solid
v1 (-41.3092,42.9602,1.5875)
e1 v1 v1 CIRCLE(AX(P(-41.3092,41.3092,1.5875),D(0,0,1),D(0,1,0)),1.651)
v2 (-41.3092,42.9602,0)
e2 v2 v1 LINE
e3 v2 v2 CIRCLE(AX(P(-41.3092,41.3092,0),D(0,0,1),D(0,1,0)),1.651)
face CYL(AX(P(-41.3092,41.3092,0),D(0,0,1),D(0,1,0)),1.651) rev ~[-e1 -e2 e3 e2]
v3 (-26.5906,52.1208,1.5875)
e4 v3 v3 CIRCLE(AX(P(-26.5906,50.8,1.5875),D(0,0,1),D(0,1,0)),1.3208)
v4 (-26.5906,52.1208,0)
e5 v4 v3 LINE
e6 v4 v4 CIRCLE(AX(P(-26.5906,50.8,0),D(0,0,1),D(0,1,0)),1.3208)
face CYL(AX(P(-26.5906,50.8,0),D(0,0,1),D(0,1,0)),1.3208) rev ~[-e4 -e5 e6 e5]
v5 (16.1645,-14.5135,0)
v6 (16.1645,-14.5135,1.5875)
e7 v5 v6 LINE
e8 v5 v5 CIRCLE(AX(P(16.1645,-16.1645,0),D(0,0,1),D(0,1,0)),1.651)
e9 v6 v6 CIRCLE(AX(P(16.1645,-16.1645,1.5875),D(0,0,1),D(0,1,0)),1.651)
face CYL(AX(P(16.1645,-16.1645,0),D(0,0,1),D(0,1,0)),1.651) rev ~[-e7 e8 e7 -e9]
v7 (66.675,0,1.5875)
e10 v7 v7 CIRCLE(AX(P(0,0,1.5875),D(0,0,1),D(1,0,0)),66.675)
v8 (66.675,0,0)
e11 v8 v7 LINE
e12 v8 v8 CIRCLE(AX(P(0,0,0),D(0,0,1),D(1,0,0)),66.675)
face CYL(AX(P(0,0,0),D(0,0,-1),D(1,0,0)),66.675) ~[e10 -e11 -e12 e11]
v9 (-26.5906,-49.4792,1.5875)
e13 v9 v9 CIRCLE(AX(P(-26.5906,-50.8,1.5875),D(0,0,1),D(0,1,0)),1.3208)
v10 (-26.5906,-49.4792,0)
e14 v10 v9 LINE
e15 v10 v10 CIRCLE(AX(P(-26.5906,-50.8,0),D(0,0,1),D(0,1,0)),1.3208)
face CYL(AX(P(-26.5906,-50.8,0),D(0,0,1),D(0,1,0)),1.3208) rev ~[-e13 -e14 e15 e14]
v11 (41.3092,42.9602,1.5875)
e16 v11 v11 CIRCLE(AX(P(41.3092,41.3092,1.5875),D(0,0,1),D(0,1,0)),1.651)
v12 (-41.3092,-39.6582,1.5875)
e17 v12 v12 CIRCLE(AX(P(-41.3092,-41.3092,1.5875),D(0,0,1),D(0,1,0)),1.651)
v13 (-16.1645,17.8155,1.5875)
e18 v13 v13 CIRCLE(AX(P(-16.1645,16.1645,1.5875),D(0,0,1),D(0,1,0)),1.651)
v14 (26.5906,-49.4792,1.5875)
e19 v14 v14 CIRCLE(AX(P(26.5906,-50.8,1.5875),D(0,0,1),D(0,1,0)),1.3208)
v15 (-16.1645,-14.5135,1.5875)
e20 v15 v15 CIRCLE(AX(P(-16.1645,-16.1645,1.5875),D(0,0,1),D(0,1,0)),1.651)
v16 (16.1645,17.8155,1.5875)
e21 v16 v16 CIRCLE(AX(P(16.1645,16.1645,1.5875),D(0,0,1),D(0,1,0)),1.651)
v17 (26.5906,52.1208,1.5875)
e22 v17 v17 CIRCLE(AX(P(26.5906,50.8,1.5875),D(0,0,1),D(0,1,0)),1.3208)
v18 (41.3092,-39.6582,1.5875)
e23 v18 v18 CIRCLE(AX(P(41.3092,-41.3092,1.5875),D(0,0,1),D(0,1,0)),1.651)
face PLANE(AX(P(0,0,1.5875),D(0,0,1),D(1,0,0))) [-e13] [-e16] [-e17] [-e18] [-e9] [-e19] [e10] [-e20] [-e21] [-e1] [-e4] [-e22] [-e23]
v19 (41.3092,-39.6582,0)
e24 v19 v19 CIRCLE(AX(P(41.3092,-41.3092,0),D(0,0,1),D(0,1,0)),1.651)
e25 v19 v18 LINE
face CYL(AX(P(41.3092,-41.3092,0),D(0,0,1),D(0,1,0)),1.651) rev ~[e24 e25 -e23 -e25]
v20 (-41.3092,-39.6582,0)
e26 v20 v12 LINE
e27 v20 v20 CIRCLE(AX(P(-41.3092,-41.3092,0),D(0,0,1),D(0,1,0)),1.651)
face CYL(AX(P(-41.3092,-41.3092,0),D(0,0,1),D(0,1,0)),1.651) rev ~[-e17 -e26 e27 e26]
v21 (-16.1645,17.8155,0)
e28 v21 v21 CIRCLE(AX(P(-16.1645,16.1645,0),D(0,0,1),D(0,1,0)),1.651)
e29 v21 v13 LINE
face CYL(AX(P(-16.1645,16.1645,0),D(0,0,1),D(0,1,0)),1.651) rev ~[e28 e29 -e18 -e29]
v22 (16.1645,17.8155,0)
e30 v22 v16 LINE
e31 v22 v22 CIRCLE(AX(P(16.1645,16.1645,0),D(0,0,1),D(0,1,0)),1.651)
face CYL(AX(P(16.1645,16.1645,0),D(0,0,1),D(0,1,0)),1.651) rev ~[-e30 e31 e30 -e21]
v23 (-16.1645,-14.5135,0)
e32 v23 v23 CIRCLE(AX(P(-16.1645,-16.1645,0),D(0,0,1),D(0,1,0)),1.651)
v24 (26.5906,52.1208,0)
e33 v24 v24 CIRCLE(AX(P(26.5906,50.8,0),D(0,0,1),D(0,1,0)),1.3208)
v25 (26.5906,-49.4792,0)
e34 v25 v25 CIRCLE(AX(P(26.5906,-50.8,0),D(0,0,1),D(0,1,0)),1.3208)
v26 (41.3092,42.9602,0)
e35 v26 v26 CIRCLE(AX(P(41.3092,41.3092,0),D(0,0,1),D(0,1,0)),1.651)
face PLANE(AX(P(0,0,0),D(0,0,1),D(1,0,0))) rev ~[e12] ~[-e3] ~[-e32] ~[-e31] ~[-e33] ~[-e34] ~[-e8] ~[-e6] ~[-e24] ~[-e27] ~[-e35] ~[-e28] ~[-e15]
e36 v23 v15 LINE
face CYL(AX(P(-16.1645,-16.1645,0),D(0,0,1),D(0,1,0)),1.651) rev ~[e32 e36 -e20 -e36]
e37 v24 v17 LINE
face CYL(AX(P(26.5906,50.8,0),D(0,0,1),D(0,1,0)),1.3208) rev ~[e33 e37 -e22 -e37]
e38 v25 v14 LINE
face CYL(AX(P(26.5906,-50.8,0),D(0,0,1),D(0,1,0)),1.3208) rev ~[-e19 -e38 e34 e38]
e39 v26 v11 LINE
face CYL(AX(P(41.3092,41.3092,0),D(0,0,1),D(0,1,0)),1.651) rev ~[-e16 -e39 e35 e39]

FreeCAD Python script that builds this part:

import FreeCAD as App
import Part
import Sketcher
from FreeCAD import Vector
Q = App.Units.Quantity

doc = App.newDocument("Part")
params = doc.addObject("Spreadsheet::Sheet", "Params")
for row, (alias, value) in enumerate([
    ("sketch1_diameter", "5.25 in"),
    ("pad1_length", "0.0625 in"),
    ("sketch2_diameter", "0.13 in"),
    ("hole_diameter", "0.13 in"),
    ("sketch3_diameter", "0.104 in"),
    ("hole2_diameter", "0.104 in"),
], start=1):
    params.set(f"A{row}", alias)
    params.set(f"B{row}", "=" + value)
    params.setAlias(f"B{row}", alias)

body = doc.addObject("PartDesign::Body", "Body")

# Sketch on XY plane
sketch1 = body.newObject("Sketcher::SketchObject", "Sketch")
sketch1.AttachmentSupport = (doc.getObject("XY_Plane"), [""])
sketch1.MapMode = "FlatFace"
sketch1.addGeometry(Part.Circle(Vector(0, 0, 0), Vector(0, 0, 1), 67), False)
sketch1.addConstraint([
    Sketcher.Constraint("Coincident", 0, 3, -1, 1),
    Sketcher.Constraint("Diameter", 0, Q("5.25 in")),
])
sketch1.setExpression("Constraints[1]", "Params.sketch1_diameter")
pad1 = body.newObject("PartDesign::Pad", "Pad")
pad1.Profile = sketch1
pad1.setExpression("Length", "Params.pad1_length")

# Sketch on XY plane
sketch2 = body.newObject("Sketcher::SketchObject", "Sketch001")
sketch2.AttachmentSupport = (doc.getObject("XY_Plane"), [""])
sketch2.MapMode = "FlatFace"
sketch2.addGeometry([
    Part.Circle(Vector(-16.2, 16.2, 0), Vector(0, 0, 1), 1.7),  # 0
    Part.Circle(Vector(-41.3, 41.3, 0), Vector(0, 0, 1), 1.7),  # 1
    Part.Circle(Vector(-41.3, -41.3, 0), Vector(0, 0, 1), 1.7),  # 2
    Part.Circle(Vector(-16.2, -16.2, 0), Vector(0, 0, 1), 1.7),  # 3
    Part.Circle(Vector(41.3, 41.3, 0), Vector(0, 0, 1), 1.7),  # 4
    Part.Circle(Vector(16.2, 16.2, 0), Vector(0, 0, 1), 1.7),  # 5
    Part.Circle(Vector(16.2, -16.2, 0), Vector(0, 0, 1), 1.7),  # 6
    Part.Circle(Vector(41.3, -41.3, 0), Vector(0, 0, 1), 1.7),  # 7
], False)
sketch2.addConstraint([
    Sketcher.Constraint("Equal", 0, 1),
    Sketcher.Constraint("Equal", 1, 2),
    Sketcher.Constraint("Equal", 2, 3),
    Sketcher.Constraint("Equal", 3, 4),
    Sketcher.Constraint("Equal", 4, 5),
    Sketcher.Constraint("Equal", 5, 6),
    Sketcher.Constraint("Equal", 6, 7),
    Sketcher.Constraint("Symmetric", 2, 3, 4, 3, -1, 1),
    Sketcher.Constraint("Symmetric", 3, 3, 5, 3, -1, 1),
    Sketcher.Constraint("Symmetric", 0, 3, 6, 3, -1, 1),
    Sketcher.Constraint("Symmetric", 1, 3, 7, 3, -1, 1),
    Sketcher.Constraint("Symmetric", 1, 3, 4, 3, -2),
    Sketcher.Constraint("Symmetric", 0, 3, 5, 3, -2),
    Sketcher.Constraint("Diameter", 0, Q("0.13 in")),
    Sketcher.Constraint("DistanceX", 0, 3, -1, 1, Q("0.6364 in")),
    Sketcher.Constraint("DistanceY", -1, 1, 0, 3, Q("0.6364 in")),
    Sketcher.Constraint("DistanceY", 2, 3, 1, 3, Q("3.2527 in")),
    Sketcher.Constraint("DistanceX", 1, 3, 4, 3, Q("3.2527 in")),
])
sketch2.setExpression("Constraints[13]", "Params.sketch2_diameter")
doc.recompute()
hole = body.newObject("PartDesign::Hole", "Hole")
hole.Profile = sketch2
hole.ThreadType = "None"
hole.setExpression("Diameter", "Params.hole_diameter")
hole.DepthType = "ThroughAll"
hole.Reversed = True

# Sketch on XY plane
sketch3 = body.newObject("Sketcher::SketchObject", "Sketch002")
sketch3.AttachmentSupport = (doc.getObject("XY_Plane"), [""])
sketch3.MapMode = "FlatFace"
sketch3.addGeometry([
    Part.Circle(Vector(-26.6, -50.8, 0), Vector(0, 0, 1), 1.3),
    Part.Circle(Vector(26.6, -50.8, 0), Vector(0, 0, 1), 1.3),
    Part.Circle(Vector(26.6, 50.8, 0), Vector(0, 0, 1), 1.3),
    Part.Circle(Vector(-26.6, 50.8, 0), Vector(0, 0, 1), 1.3),
], False)
sketch3.addConstraint([
    Sketcher.Constraint("Equal", 0, 1),
    Sketcher.Constraint("Equal", 1, 2),
    Sketcher.Constraint("Equal", 2, 3),
    Sketcher.Constraint("Symmetric", 0, 3, 2, 3, -1, 1),
    Sketcher.Constraint("Symmetric", 1, 3, 3, 3, -1, 1),
    Sketcher.Constraint("Symmetric", 0, 3, 1, 3, -2),
    Sketcher.Constraint("Diameter", 0, Q("0.104 in")),
    Sketcher.Constraint("DistanceY", 0, 3, -1, 1, Q("2 in")),
    Sketcher.Constraint("DistanceX", 0, 3, -1, 1, Q("1.046874 in")),
])
sketch3.setExpression("Constraints[6]", "Params.sketch3_diameter")
doc.recompute()
hole2 = body.newObject("PartDesign::Hole", "Hole001")
hole2.Profile = sketch3
hole2.ThreadType = "None"
hole2.setExpression("Diameter", "Params.hole2_diameter")
hole2.DepthType = "ThroughAll"
hole2.Reversed = True

doc.recompute()
